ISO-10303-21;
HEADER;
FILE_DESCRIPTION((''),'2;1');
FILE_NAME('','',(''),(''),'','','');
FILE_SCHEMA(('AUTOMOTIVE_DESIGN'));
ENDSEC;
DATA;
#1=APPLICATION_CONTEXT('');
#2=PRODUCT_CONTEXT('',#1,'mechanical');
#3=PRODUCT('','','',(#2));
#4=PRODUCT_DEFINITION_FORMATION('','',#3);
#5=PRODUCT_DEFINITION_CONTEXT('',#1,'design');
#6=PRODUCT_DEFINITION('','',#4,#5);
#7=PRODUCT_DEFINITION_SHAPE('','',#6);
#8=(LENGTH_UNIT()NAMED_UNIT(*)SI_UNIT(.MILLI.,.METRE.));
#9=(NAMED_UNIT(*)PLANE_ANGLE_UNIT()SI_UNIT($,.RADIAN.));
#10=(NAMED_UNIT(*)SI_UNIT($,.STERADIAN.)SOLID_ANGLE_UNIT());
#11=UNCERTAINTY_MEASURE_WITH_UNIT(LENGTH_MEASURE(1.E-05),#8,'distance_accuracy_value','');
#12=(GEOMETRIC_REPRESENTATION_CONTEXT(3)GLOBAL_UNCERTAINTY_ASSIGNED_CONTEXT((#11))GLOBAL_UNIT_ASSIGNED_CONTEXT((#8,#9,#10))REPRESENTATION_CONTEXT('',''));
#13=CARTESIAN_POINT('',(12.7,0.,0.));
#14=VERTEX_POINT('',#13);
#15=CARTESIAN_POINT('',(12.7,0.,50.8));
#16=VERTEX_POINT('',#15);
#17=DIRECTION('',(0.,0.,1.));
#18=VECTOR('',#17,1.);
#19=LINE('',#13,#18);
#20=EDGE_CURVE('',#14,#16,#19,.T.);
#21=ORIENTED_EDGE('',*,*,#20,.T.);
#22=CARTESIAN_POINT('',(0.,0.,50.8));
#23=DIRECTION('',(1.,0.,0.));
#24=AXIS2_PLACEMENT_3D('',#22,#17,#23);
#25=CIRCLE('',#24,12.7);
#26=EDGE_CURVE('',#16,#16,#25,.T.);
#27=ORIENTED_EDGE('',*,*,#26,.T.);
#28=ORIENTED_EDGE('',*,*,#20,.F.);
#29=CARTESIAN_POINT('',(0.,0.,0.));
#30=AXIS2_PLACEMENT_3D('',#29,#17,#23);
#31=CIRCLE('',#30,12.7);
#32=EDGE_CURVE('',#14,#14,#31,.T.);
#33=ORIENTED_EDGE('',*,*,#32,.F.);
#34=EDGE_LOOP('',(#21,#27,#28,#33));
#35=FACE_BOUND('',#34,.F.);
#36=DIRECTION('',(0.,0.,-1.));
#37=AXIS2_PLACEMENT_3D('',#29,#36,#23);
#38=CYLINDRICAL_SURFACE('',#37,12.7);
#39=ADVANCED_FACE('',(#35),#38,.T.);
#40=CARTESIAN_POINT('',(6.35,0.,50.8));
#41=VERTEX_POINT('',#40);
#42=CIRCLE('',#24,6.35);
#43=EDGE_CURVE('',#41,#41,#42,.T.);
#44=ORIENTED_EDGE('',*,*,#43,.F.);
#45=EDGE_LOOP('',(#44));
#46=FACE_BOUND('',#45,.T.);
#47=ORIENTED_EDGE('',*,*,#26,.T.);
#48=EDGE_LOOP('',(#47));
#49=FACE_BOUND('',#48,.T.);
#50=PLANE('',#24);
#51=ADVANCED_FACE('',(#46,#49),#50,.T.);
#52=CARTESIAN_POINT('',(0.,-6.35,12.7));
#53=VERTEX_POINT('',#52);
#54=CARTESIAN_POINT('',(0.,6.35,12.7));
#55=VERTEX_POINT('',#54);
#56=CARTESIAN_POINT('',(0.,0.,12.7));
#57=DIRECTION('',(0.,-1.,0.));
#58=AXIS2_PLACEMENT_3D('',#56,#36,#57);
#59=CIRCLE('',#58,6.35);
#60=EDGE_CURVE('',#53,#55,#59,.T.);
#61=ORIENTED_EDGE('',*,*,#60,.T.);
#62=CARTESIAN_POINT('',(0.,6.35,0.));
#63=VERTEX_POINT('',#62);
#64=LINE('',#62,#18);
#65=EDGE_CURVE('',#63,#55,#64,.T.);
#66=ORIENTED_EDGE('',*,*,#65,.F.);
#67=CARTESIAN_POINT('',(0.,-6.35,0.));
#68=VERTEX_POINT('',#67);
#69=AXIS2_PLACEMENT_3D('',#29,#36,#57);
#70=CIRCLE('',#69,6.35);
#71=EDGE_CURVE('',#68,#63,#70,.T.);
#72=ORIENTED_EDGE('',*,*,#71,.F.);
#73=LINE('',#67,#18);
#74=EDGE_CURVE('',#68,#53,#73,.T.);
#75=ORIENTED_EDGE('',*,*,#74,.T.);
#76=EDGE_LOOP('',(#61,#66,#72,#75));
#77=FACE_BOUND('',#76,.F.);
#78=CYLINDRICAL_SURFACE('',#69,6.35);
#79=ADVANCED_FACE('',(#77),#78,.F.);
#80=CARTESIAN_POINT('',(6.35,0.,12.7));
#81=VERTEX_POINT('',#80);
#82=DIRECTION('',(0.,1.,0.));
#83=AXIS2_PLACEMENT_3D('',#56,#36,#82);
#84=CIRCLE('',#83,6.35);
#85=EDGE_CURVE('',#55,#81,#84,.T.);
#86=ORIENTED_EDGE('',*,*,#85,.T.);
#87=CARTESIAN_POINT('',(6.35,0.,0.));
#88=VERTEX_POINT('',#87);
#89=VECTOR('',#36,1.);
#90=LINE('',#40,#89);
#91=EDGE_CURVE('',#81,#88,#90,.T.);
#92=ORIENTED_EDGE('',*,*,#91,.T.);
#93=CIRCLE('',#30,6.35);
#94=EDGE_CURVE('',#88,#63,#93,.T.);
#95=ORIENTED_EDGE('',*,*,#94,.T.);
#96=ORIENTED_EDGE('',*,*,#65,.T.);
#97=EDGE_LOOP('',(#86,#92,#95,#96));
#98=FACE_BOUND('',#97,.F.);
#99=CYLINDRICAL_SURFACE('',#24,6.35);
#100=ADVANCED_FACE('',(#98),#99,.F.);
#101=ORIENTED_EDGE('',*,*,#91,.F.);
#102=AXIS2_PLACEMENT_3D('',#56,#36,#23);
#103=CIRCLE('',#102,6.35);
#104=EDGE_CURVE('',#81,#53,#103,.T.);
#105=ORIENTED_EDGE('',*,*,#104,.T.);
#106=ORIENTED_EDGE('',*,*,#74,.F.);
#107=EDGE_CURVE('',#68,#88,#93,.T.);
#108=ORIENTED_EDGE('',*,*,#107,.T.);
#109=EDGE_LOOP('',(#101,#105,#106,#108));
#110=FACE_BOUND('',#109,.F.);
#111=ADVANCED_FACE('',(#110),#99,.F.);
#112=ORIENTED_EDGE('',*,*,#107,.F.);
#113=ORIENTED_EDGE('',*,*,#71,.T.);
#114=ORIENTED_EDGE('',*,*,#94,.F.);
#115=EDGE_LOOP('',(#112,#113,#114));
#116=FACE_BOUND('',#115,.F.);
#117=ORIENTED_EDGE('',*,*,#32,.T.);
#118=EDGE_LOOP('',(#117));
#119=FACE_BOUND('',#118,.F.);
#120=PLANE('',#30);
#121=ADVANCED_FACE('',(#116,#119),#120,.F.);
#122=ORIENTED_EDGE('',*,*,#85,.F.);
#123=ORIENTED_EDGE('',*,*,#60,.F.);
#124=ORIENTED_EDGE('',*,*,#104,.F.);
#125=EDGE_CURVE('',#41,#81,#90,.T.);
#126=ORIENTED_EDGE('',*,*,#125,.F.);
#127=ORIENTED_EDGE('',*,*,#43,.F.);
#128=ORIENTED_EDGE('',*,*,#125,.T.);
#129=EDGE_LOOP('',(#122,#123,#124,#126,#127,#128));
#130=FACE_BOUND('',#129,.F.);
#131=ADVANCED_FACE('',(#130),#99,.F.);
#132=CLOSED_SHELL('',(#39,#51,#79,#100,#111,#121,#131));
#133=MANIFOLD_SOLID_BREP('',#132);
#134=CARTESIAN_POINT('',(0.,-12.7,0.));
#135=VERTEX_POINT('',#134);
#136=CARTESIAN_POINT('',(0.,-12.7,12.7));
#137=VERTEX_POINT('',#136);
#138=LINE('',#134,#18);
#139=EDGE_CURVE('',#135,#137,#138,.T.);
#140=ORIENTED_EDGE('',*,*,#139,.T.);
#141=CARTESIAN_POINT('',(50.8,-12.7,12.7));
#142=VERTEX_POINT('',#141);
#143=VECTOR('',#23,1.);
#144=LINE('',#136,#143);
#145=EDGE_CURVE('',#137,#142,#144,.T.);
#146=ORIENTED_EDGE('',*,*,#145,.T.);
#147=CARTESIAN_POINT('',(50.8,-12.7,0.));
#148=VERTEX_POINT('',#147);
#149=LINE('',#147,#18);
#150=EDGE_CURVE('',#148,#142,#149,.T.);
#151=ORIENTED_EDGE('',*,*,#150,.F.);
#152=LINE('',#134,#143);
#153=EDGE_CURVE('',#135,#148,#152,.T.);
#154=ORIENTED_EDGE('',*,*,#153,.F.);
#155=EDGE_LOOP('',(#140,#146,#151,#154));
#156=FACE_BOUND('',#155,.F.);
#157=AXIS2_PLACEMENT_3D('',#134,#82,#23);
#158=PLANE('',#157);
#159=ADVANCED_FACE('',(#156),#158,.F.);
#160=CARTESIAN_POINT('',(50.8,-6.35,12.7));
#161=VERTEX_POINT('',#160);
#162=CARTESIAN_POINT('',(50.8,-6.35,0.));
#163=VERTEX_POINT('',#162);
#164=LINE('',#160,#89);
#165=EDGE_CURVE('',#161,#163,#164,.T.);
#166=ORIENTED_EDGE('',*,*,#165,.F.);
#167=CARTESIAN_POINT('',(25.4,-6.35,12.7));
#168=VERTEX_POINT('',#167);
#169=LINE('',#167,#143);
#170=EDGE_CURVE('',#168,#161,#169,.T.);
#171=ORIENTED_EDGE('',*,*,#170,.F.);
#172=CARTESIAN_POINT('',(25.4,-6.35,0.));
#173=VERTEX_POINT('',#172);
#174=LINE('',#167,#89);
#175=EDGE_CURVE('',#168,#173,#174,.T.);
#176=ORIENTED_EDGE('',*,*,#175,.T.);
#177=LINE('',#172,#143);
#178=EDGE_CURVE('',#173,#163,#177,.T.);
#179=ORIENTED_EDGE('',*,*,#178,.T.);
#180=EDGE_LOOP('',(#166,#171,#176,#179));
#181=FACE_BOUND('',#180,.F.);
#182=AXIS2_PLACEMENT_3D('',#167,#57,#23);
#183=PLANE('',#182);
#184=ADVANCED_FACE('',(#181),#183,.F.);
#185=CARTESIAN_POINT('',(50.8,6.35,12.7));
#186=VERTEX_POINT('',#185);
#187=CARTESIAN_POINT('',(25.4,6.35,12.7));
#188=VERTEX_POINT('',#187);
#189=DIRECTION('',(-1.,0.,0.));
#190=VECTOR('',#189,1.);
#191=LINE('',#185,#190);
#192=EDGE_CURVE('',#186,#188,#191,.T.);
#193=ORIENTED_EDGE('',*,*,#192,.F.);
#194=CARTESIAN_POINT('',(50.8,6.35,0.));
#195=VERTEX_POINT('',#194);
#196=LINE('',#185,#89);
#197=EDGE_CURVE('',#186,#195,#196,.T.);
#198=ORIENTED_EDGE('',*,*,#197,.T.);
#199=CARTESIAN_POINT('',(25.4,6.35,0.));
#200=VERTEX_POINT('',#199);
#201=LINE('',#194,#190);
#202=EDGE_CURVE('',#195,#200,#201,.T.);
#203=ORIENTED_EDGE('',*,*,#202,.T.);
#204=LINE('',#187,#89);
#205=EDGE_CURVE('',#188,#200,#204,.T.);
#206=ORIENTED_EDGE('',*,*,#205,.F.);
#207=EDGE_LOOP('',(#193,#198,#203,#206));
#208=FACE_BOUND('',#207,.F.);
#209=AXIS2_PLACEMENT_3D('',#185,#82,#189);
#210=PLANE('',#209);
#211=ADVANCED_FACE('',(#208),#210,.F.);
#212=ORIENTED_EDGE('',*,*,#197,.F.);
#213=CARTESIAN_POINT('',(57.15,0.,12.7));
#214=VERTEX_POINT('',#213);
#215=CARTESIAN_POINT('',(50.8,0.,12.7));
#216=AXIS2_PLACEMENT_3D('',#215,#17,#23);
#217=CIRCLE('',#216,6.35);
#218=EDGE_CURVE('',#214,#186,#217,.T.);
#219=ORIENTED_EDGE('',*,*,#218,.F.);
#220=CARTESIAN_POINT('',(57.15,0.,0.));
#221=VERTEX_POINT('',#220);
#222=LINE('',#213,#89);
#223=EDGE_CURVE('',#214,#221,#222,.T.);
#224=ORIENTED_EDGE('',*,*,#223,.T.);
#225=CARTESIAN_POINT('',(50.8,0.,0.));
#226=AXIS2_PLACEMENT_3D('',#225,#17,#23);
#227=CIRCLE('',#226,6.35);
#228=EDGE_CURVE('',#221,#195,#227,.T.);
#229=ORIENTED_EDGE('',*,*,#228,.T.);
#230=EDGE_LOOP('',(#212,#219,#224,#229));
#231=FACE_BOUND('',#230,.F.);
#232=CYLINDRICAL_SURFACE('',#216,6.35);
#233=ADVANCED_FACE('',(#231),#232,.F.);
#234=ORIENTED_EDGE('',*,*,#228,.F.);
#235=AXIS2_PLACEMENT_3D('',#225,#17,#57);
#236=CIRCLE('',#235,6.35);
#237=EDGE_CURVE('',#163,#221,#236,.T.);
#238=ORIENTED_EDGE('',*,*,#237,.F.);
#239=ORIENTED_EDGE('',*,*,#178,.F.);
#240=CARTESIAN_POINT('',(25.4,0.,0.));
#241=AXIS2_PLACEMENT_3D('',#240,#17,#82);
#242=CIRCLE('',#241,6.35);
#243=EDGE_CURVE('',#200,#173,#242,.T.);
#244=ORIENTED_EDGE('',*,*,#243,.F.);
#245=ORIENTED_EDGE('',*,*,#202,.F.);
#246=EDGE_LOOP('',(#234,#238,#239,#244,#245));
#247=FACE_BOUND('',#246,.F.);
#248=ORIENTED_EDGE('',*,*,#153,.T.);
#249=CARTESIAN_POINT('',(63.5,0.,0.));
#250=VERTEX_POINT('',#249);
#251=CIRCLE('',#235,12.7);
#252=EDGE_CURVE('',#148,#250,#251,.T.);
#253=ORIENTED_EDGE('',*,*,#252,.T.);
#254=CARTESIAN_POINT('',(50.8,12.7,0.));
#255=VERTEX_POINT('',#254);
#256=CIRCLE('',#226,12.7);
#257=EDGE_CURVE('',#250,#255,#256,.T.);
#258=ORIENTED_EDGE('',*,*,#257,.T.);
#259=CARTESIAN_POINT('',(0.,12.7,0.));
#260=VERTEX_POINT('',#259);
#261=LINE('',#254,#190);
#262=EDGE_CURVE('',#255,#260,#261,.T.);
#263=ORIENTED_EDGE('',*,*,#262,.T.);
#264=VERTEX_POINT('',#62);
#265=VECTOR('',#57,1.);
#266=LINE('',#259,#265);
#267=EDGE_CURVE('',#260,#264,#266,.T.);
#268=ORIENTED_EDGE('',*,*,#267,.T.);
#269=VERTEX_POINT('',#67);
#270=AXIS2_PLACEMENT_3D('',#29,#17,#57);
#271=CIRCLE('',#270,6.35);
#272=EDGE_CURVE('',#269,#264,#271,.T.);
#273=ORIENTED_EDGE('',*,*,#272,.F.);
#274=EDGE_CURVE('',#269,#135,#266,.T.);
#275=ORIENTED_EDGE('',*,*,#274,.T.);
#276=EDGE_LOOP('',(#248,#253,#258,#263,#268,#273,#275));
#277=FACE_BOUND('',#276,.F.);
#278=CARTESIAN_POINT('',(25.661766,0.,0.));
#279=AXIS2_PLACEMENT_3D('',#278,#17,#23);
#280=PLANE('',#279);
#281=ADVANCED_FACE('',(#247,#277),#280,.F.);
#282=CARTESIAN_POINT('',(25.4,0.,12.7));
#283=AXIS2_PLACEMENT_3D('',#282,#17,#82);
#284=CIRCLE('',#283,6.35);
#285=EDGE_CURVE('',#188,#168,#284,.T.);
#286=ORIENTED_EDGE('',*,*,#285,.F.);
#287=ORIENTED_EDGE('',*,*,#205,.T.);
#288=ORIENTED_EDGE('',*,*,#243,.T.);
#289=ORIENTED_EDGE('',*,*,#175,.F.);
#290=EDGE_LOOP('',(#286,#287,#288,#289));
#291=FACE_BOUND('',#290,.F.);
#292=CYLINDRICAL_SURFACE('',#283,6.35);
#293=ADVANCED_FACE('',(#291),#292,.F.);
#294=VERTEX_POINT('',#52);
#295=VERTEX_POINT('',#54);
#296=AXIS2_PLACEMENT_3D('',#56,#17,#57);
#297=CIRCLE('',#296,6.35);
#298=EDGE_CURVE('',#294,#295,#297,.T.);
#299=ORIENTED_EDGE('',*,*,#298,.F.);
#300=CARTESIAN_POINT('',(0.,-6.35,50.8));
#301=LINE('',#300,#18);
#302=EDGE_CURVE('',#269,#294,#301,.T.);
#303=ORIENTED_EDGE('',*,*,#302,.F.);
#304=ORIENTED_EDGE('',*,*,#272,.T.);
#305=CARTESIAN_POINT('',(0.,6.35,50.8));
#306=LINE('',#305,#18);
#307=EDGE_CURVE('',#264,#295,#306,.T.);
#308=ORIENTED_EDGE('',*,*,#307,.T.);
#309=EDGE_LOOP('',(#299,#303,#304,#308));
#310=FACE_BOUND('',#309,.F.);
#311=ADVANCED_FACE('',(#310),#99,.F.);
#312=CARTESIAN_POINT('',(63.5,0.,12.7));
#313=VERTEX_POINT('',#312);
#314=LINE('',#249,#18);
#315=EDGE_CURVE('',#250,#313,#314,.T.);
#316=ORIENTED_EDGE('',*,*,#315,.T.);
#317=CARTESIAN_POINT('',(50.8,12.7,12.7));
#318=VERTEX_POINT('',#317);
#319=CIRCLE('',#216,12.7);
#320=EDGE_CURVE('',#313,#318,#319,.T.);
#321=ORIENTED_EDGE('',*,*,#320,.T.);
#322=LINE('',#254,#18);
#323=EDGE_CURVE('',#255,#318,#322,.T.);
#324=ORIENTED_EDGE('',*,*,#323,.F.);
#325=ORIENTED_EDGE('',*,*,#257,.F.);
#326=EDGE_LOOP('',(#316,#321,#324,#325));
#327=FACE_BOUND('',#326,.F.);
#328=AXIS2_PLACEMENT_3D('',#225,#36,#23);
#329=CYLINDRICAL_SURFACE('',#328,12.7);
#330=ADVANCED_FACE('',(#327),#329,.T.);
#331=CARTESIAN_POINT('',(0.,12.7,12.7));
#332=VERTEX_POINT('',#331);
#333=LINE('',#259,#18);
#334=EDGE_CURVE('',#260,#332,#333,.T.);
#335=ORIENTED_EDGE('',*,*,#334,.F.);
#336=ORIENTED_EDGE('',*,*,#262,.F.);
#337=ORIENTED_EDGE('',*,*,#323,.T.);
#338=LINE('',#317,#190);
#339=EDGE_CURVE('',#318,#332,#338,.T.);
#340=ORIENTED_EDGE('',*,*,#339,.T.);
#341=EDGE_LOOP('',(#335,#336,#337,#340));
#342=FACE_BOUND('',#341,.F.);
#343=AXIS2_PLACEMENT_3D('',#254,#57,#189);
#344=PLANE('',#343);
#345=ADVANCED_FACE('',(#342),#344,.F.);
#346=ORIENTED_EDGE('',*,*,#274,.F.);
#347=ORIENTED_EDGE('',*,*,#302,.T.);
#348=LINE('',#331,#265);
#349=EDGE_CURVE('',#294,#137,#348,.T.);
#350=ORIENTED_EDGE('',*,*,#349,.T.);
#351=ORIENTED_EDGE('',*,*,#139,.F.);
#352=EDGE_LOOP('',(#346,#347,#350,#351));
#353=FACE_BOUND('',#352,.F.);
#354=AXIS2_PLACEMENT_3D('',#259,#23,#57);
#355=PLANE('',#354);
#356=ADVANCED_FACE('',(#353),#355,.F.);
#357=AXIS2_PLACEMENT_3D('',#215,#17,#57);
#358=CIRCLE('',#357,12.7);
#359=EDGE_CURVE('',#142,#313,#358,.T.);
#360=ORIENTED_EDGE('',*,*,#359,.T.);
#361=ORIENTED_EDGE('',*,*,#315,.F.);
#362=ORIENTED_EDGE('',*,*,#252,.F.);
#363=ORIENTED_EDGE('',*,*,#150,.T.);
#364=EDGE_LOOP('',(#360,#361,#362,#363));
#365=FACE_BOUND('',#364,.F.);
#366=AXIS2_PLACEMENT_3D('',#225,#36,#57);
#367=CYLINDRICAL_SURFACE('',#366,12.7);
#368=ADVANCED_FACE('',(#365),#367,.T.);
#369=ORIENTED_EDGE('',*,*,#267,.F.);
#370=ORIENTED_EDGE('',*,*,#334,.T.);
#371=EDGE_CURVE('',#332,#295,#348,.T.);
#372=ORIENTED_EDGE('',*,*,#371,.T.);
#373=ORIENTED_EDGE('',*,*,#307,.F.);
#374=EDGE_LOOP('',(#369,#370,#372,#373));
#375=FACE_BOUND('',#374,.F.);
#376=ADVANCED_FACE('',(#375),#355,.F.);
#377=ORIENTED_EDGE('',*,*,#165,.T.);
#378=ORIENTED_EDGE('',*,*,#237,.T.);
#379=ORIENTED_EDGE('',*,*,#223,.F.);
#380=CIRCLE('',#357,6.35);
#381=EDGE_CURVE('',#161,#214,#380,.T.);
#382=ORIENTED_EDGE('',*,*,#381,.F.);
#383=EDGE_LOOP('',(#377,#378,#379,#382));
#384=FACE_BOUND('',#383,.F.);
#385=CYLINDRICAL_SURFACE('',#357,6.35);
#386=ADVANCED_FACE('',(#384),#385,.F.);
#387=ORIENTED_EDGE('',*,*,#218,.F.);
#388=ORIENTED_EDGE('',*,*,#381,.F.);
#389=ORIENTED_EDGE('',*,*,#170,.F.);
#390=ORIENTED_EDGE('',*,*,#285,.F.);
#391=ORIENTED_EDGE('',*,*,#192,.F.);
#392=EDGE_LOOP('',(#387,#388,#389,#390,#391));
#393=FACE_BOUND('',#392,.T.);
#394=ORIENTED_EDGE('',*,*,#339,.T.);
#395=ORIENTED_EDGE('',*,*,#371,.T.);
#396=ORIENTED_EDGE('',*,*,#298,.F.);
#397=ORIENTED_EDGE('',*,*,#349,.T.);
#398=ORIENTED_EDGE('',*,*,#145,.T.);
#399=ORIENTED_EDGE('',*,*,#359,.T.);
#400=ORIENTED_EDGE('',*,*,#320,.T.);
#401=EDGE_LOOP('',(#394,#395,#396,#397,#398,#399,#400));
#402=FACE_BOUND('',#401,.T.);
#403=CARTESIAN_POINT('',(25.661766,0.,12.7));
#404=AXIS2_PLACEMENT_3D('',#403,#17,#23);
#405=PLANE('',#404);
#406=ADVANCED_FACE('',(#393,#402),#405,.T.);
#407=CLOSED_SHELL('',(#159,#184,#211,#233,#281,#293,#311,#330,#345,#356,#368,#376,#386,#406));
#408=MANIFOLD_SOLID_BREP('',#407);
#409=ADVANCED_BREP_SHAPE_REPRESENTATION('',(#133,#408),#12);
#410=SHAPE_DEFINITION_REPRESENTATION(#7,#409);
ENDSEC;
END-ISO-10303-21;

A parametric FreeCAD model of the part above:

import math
import FreeCAD as App
import Part
import Sketcher
from FreeCAD import Vector
Q = App.Units.Quantity

doc = App.newDocument("Part")
body = doc.addObject("PartDesign::Body", "Body")

# Sketch on XY plane
sketch1 = body.newObject("Sketcher::SketchObject", "Sketch")
sketch1.AttachmentSupport = (doc.getObject("XY_Plane"), [""])
sketch1.MapMode = "FlatFace"
sketch1.addGeometry(Part.Circle(Vector(0, 0, 0), Vector(0, 0, 1), 12.7), False)
sketch1.addConstraint([
    Sketcher.Constraint("Coincident", 0, 3, -1, 1),
    Sketcher.Constraint("Diameter", 0, Q("1 in")),
])
pad1 = body.newObject("PartDesign::Pad", "Pad")
pad1.Profile = sketch1
pad1.Length = Q("2 in")
body2 = doc.addObject("PartDesign::Body", "Body001")

# Sketch on XY plane
sketch2 = body2.newObject("Sketcher::SketchObject", "Sketch001")
sketch2.AttachmentSupport = (doc.getObject("XY_Plane001"), [""])
sketch2.MapMode = "FlatFace"
sketch2.addGeometry([
    Part.LineSegment(Vector(0, 12.7, 0), Vector(0, -12.7, 0)),  # 0
    Part.LineSegment(Vector(0, -12.7, 0), Vector(50.8, -12.7, 0)),  # 1
    Part.ArcOfCircle(Part.Circle(Vector(50.8, 0, 0), Vector(0, 0, 1), 12.7), math.radians(-90), math.radians(0)),  # 2
    Part.ArcOfCircle(Part.Circle(Vector(50.8, 0, 0), Vector(0, 0, 1), 12.7), math.radians(0), math.radians(90)),  # 3
    Part.LineSegment(Vector(50.8, 12.7, 0), Vector(0, 12.7, 0)),  # 4
], False)
sketch2.addConstraint([
    Sketcher.Constraint("Coincident", 0, 2, 1, 1),
    Sketcher.Constraint("Tangent", 1, 2, 2, 1),
    Sketcher.Constraint("Tangent", 2, 2, 3, 1),
    Sketcher.Constraint("Tangent", 3, 2, 4, 1),
    Sketcher.Constraint("Coincident", 4, 2, 0, 1),
    Sketcher.Constraint("Vertical", 0),
    Sketcher.Constraint("Horizontal", 1),
    Sketcher.Constraint("Horizontal", 4),
    Sketcher.Constraint("Equal", 2, 3),
    Sketcher.Constraint("Symmetric", 0, 2, 4, 2, -1, 1),
    Sketcher.Constraint("PointOnObject", 2, 2, -1),
    Sketcher.Constraint("Radius", 2, Q("0.5 in")),
    Sketcher.Constraint("DistanceX", 1, 1, 1, 2, Q("2 in")),
])
pad2 = body2.newObject("PartDesign::Pad", "Pad001")
pad2.Profile = sketch2
pad2.Length = Q("0.5 in")

# Sketch on XY plane
sketch3 = body2.newObject("Sketcher::SketchObject", "Sketch002")
sketch3.AttachmentSupport = (doc.getObject("XY_Plane001"), [""])
sketch3.MapMode = "FlatFace"
sketch3.AttachmentOffset = App.Placement(Vector(0, 0, 0.5 * 25.4), App.Rotation())
sketch3.addGeometry([
    Part.ArcOfCircle(Part.Circle(Vector(50.8, 0, 0), Vector(0, 0, 1), 6.35), math.radians(0), math.radians(90)),  # 0
    Part.LineSegment(Vector(50.8, 6.35, 0), Vector(25.4, 6.35, 0)),  # 1
    Part.ArcOfCircle(Part.Circle(Vector(25.4, 0, 0), Vector(0, 0, 1), 6.35), math.radians(90), math.radians(270)),  # 2
    Part.LineSegment(Vector(25.4, -6.35, 0), Vector(50.8, -6.35, 0)),  # 3
    Part.ArcOfCircle(Part.Circle(Vector(50.8, 0, 0), Vector(0, 0, 1), 6.35), math.radians(-90), math.radians(0)),  # 4
], False)
sketch3.addConstraint([
    Sketcher.Constraint("Tangent", 0, 2, 1, 1),
    Sketcher.Constraint("Tangent", 1, 2, 2, 1),
    Sketcher.Constraint("Tangent", 2, 2, 3, 1),
    Sketcher.Constraint("Tangent", 3, 2, 4, 1),
    Sketcher.Constraint("Tangent", 4, 2, 0, 1),
    Sketcher.Constraint("Horizontal", 1),
    Sketcher.Constraint("Horizontal", 3),
    Sketcher.Constraint("Equal", 0, 2),
    Sketcher.Constraint("PointOnObject", 0, 3, -1),
    Sketcher.Constraint("PointOnObject", 4, 2, -1),
    Sketcher.Constraint("DistanceX", 1, 2, 1, 1, Q("1 in")),
    Sketcher.Constraint("Radius", 0, Q("0.25 in")),
    Sketcher.Constraint("DistanceX", -1, 1, 0, 3, Q("2 in")),
])
pocket1 = body2.newObject("PartDesign::Pocket", "Pocket")
pocket1.Profile = sketch3
pocket1.Length = Q("0.5 in")
body3 = doc.addObject("PartDesign::Body", "Body002")

# Sketch on XY plane
sketch4 = body3.newObject("Sketcher::SketchObject", "Sketch003")
sketch4.AttachmentSupport = (doc.getObject("XY_Plane002"), [""])
sketch4.MapMode = "FlatFace"
sketch4.AttachmentOffset = App.Placement(Vector(0, 0, 2 * 25.4), App.Rotation())
sketch4.addGeometry(Part.Circle(Vector(0, 0, 0), Vector(0, 0, 1), 6.35), False)
sketch4.addConstraint([
    Sketcher.Constraint("Coincident", 0, 3, -1, 1),
    Sketcher.Constraint("Diameter", 0, Q("0.5 in")),
])
pad3 = body3.newObject("PartDesign::Pad", "Pad002")
pad3.Profile = sketch4
pad3.Length = Q("2 in")
pad3.Reversed = True
doc.recompute()

body4 = doc.addObject("PartDesign::Body", "Body003")
body4.BaseFeature = body3
boolean = body.newObject("PartDesign::Boolean", "Boolean")
boolean.Type = "Cut"
boolean.addObjects([body4])
doc.recompute()

# Sketch on XY plane
sketch5 = body.newObject("Sketcher::SketchObject", "Sketch004")
sketch5.AttachmentSupport = (doc.getObject("XY_Plane"), [""])
sketch5.MapMode = "FlatFace"
sketch5.addGeometry([
    Part.ArcOfCircle(Part.Circle(Vector(0, 0, 0), Vector(0, 0, 1), 6.35), math.radians(0), math.radians(90)),
    Part.ArcOfCircle(Part.Circle(Vector(0, 0, 0), Vector(0, 0, 1), 6.35), math.radians(-90), math.radians(0)),
    Part.ArcOfCircle(Part.Circle(Vector(0, 0, 0), Vector(0, 0, 1), 6.35), math.radians(90), math.radians(270)),
], False)
sketch5.addConstraint([
    Sketcher.Constraint("Tangent", 0, 1, 1, 2),
    Sketcher.Constraint("Tangent", 1, 1, 2, 2),
    Sketcher.Constraint("Tangent", 2, 1, 0, 2),
    Sketcher.Constraint("Coincident", 0, 3, -1, 1),
    Sketcher.Constraint("PointOnObject", 0, 1, -1),
    Sketcher.Constraint("PointOnObject", 1, 1, -2),
    Sketcher.Constraint("PointOnObject", 2, 1, -2),
    Sketcher.Constraint("Radius", 0, Q("0.25 in")),
])
pocket2 = body.newObject("PartDesign::Pocket", "Pocket001")
pocket2.Profile = sketch5
pocket2.Length = Q("0.5 in")
pocket2.Reversed = True
doc.recompute()

boolean2 = body2.newObject("PartDesign::Boolean", "Boolean001")
boolean2.Type = "Cut"
boolean2.addObjects([body3])

doc.recompute()
